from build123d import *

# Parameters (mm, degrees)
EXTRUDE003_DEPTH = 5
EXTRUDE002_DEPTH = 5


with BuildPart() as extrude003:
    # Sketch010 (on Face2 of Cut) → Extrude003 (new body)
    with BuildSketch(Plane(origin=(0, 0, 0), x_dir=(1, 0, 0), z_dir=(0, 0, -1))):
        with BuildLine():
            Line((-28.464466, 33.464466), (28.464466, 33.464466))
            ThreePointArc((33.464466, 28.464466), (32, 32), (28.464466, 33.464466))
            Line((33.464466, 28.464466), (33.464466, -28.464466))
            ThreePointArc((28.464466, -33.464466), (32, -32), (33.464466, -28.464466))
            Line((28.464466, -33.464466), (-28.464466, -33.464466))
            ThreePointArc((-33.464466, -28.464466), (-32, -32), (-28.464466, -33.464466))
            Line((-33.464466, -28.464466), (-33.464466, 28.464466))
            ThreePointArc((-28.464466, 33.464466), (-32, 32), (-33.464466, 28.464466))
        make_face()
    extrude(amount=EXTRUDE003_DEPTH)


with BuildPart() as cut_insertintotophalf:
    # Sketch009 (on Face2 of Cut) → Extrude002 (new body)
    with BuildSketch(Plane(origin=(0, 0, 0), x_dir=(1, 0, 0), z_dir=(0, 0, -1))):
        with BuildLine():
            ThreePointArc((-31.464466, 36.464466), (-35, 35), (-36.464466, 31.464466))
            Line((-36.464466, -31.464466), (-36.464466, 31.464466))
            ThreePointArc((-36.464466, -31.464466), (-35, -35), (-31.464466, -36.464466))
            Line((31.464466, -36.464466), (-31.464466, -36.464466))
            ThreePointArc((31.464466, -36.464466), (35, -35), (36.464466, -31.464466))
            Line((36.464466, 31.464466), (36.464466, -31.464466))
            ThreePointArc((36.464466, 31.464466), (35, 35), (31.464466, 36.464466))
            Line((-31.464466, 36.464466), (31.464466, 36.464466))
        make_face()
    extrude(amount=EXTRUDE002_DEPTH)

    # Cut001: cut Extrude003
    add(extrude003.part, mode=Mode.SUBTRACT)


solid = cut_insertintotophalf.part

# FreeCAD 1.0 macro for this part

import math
import FreeCAD as App
import Part
import Sketcher
Q = App.Units.Quantity

doc = App.newDocument("Part")
params = doc.addObject("Spreadsheet::Sheet", "Params")
for row, (alias, value) in enumerate([
    ("sketch1_radius", "5 mm"),
    ("pad1_length", "5 mm"),
    ("sketch2_radius", "5 mm"),
    ("pad2_length", "5 mm"),
], start=1):
    params.set(f"A{row}", alias)
    params.set(f"B{row}", "=" + value)
    params.setAlias(f"B{row}", alias)

body = doc.addObject("PartDesign::Body", "Body")

sketch1 = doc.addObject("Sketcher::SketchObject", "Sketch")
body.addObject(sketch1)
sketch1.AttachmentSupport = (doc.XY_Plane, [""])
sketch1.MapMode = "FlatFace"
sketch1.addGeometry(Part.LineSegment(App.Vector(28.5, -33.5, 0), App.Vector(-28.5, -33.5, 0)), False)
sketch1.addGeometry(Part.ArcOfCircle(Part.Circle(App.Vector(-28.5, -28.5, 0), App.Vector(0, 0, 1), 5), math.radians(180), math.radians(270)), False)
sketch1.addGeometry(Part.LineSegment(App.Vector(-33.5, -28.5, 0), App.Vector(-33.5, 28.5, 0)), False)
sketch1.addGeometry(Part.ArcOfCircle(Part.Circle(App.Vector(-28.5, 28.5, 0), App.Vector(0, 0, 1), 5), math.radians(90), math.radians(180)), False)
sketch1.addGeometry(Part.LineSegment(App.Vector(-28.5, 33.5, 0), App.Vector(28.5, 33.5, 0)), False)
sketch1.addGeometry(Part.ArcOfCircle(Part.Circle(App.Vector(28.5, 28.5, 0), App.Vector(0, 0, 1), 5), math.radians(0), math.radians(90)), False)
sketch1.addGeometry(Part.LineSegment(App.Vector(33.5, 28.5, 0), App.Vector(33.5, -28.5, 0)), False)
sketch1.addGeometry(Part.ArcOfCircle(Part.Circle(App.Vector(28.5, -28.5, 0), App.Vector(0, 0, 1), 5), math.radians(-90), math.radians(0)), False)
sketch1.addConstraint(Sketcher.Constraint("Tangent", 0, 2, 1, 2))
sketch1.addConstraint(Sketcher.Constraint("Tangent", 1, 1, 2, 1))
sketch1.addConstraint(Sketcher.Constraint("Tangent", 2, 2, 3, 2))
sketch1.addConstraint(Sketcher.Constraint("Tangent", 3, 1, 4, 1))
sketch1.addConstraint(Sketcher.Constraint("Tangent", 4, 2, 5, 2))
sketch1.addConstraint(Sketcher.Constraint("Tangent", 5, 1, 6, 1))
sketch1.addConstraint(Sketcher.Constraint("Tangent", 6, 2, 7, 2))
sketch1.addConstraint(Sketcher.Constraint("Tangent", 7, 1, 0, 1))
sketch1.addConstraint(Sketcher.Constraint("Horizontal", 0))
sketch1.addConstraint(Sketcher.Constraint("Vertical", 2))
sketch1.addConstraint(Sketcher.Constraint("Horizontal", 4))
sketch1.addConstraint(Sketcher.Constraint("Vertical", 6))
sketch1.addConstraint(Sketcher.Constraint("Equal", 1, 3))
sketch1.addConstraint(Sketcher.Constraint("Equal", 3, 5))
sketch1.addConstraint(Sketcher.Constraint("Equal", 5, 7))
sketch1.addConstraint(Sketcher.Constraint("Symmetric", 1, 3, 5, 3, -1, 1))
sketch1.addConstraint(Sketcher.Constraint("Equal", 4, 2))
sketch1.addConstraint(Sketcher.Constraint("Radius", 1, Q("5 mm")))
sketch1.addConstraint(Sketcher.Constraint("DistanceX", 0, 2, 0, 1, Q("56.928932 mm")))
sketch1.setExpression("Constraints[17]", "Params.sketch1_radius")
pad1 = doc.addObject("PartDesign::Pad", "Pad")
body.addObject(pad1)
pad1.Profile = sketch1
pad1.setExpression("Length", "Params.pad1_length")
pad1.Reversed = True
body2 = doc.addObject("PartDesign::Body", "Body001")

sketch2 = doc.addObject("Sketcher::SketchObject", "Sketch001")
body2.addObject(sketch2)
sketch2.AttachmentSupport = (doc.getObject("XY_Plane001"), [""])
sketch2.MapMode = "FlatFace"
sketch2.addGeometry(Part.ArcOfCircle(Part.Circle(App.Vector(-31.5, -31.5, 0), App.Vector(0, 0, 1), 5), math.radians(180), math.radians(270)), False)
sketch2.addGeometry(Part.LineSegment(App.Vector(-36.5, -31.5, 0), App.Vector(-36.5, 31.5, 0)), False)
sketch2.addGeometry(Part.ArcOfCircle(Part.Circle(App.Vector(-31.5, 31.5, 0), App.Vector(0, 0, 1), 5), math.radians(90), math.radians(180)), False)
sketch2.addGeometry(Part.LineSegment(App.Vector(-31.5, 36.5, 0), App.Vector(31.5, 36.5, 0)), False)
sketch2.addGeometry(Part.ArcOfCircle(Part.Circle(App.Vector(31.5, 31.5, 0), App.Vector(0, 0, 1), 5), math.radians(0), math.radians(90)), False)
sketch2.addGeometry(Part.LineSegment(App.Vector(36.5, 31.5, 0), App.Vector(36.5, -31.5, 0)), False)
sketch2.addGeometry(Part.ArcOfCircle(Part.Circle(App.Vector(31.5, -31.5, 0), App.Vector(0, 0, 1), 5), math.radians(-90), math.radians(0)), False)
sketch2.addGeometry(Part.LineSegment(App.Vector(31.5, -36.5, 0), App.Vector(-31.5, -36.5, 0)), False)
sketch2.addConstraint(Sketcher.Constraint("Tangent", 0, 1, 1, 1))
sketch2.addConstraint(Sketcher.Constraint("Tangent", 1, 2, 2, 2))
sketch2.addConstraint(Sketcher.Constraint("Tangent", 2, 1, 3, 1))
sketch2.addConstraint(Sketcher.Constraint("Tangent", 3, 2, 4, 2))
sketch2.addConstraint(Sketcher.Constraint("Tangent", 4, 1, 5, 1))
sketch2.addConstraint(Sketcher.Constraint("Tangent", 5, 2, 6, 2))
sketch2.addConstraint(Sketcher.Constraint("Tangent", 6, 1, 7, 1))
sketch2.addConstraint(Sketcher.Constraint("Tangent", 7, 2, 0, 2))
sketch2.addConstraint(Sketcher.Constraint("Vertical", 1))
sketch2.addConstraint(Sketcher.Constraint("Horizontal", 3))
sketch2.addConstraint(Sketcher.Constraint("Vertical", 5))
sketch2.addConstraint(Sketcher.Constraint("Horizontal", 7))
sketch2.addConstraint(Sketcher.Constraint("Equal", 0, 2))
sketch2.addConstraint(Sketcher.Constraint("Equal", 2, 4))
sketch2.addConstraint(Sketcher.Constraint("Equal", 4, 6))
sketch2.addConstraint(Sketcher.Constraint("Symmetric", 0, 3, 4, 3, -1, 1))
sketch2.addConstraint(Sketcher.Constraint("Equal", 7, 1))
sketch2.addConstraint(Sketcher.Constraint("Radius", 0, Q("5 mm")))
sketch2.addConstraint(Sketcher.Constraint("DistanceX", 3, 1, 3, 2, Q("62.928932 mm")))
sketch2.setExpression("Constraints[17]", "Params.sketch2_radius")
pad2 = doc.addObject("PartDesign::Pad", "Pad001")
body2.addObject(pad2)
pad2.Profile = sketch2
pad2.setExpression("Length", "Params.pad2_length")
pad2.Reversed = True
doc.recompute()

boolean = doc.addObject("PartDesign::Boolean", "Boolean")
body2.addObject(boolean)
boolean.Type = "Cut"
boolean.addObjects([body])

doc.recompute()
